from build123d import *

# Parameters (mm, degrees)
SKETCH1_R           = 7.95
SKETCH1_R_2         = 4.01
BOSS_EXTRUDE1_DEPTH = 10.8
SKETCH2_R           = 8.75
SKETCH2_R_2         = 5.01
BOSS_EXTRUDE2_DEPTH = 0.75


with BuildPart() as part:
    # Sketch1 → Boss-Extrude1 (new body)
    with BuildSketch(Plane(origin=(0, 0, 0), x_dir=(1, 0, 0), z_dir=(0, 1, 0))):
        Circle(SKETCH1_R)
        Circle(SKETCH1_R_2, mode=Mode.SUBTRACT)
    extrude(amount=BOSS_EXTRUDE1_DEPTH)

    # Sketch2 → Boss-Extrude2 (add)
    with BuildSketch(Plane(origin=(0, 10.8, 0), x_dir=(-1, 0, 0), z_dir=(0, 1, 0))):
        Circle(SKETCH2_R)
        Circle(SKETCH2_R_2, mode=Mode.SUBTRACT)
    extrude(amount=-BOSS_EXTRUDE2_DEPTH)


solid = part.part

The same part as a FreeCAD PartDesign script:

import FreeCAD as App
import Part
import Sketcher
from FreeCAD import Vector
Q = App.Units.Quantity

doc = App.newDocument("Part")
body = doc.addObject("PartDesign::Body", "Body")

# Sketch on XZ plane
sketch1 = body.newObject("Sketcher::SketchObject", "Sketch")
sketch1.AttachmentSupport = (doc.getObject("XZ_Plane"), [""])
sketch1.MapMode = "FlatFace"
sketch1.addGeometry([
    Part.Circle(Vector(0, 0, 0), Vector(0, 0, 1), 7.95),
    Part.Circle(Vector(0, 0, 0), Vector(0, 0, 1), 4.01),
], False)
sketch1.addConstraint([
    Sketcher.Constraint("Coincident", 0, 3, -1, 1),
    Sketcher.Constraint("Coincident", 1, 3, -1, 1),
    Sketcher.Constraint("Diameter", 0, Q("15.9 mm")),
    Sketcher.Constraint("Diameter", 1, Q("8.02 mm")),
])
pad1 = body.newObject("PartDesign::Pad", "Pad")
pad1.Profile = sketch1
pad1.Length = 10.8
pad1.Reversed = True

# Sketch on XZ plane
sketch2 = body.newObject("Sketcher::SketchObject", "Sketch001")
sketch2.AttachmentSupport = (doc.getObject("XZ_Plane"), [""])
sketch2.MapMode = "FlatFace"
sketch2.AttachmentOffset = App.Placement(Vector(0, 0, -10.8), App.Rotation())
sketch2.addGeometry([
    Part.Circle(Vector(0, 0, 0), Vector(0, 0, 1), 8.75),
    Part.Circle(Vector(0, 0, 0), Vector(0, 0, 1), 5.01),
], False)
sketch2.addConstraint([
    Sketcher.Constraint("Coincident", 0, 3, -1, 1),
    Sketcher.Constraint("Coincident", 1, 3, -1, 1),
    Sketcher.Constraint("Diameter", 0, Q("17.5 mm")),
    Sketcher.Constraint("Diameter", 1, Q("10.02 mm")),
])
pad2 = body.newObject("PartDesign::Pad", "Pad001")
pad2.Profile = sketch2
pad2.Length = 0.75

doc.recompute()
